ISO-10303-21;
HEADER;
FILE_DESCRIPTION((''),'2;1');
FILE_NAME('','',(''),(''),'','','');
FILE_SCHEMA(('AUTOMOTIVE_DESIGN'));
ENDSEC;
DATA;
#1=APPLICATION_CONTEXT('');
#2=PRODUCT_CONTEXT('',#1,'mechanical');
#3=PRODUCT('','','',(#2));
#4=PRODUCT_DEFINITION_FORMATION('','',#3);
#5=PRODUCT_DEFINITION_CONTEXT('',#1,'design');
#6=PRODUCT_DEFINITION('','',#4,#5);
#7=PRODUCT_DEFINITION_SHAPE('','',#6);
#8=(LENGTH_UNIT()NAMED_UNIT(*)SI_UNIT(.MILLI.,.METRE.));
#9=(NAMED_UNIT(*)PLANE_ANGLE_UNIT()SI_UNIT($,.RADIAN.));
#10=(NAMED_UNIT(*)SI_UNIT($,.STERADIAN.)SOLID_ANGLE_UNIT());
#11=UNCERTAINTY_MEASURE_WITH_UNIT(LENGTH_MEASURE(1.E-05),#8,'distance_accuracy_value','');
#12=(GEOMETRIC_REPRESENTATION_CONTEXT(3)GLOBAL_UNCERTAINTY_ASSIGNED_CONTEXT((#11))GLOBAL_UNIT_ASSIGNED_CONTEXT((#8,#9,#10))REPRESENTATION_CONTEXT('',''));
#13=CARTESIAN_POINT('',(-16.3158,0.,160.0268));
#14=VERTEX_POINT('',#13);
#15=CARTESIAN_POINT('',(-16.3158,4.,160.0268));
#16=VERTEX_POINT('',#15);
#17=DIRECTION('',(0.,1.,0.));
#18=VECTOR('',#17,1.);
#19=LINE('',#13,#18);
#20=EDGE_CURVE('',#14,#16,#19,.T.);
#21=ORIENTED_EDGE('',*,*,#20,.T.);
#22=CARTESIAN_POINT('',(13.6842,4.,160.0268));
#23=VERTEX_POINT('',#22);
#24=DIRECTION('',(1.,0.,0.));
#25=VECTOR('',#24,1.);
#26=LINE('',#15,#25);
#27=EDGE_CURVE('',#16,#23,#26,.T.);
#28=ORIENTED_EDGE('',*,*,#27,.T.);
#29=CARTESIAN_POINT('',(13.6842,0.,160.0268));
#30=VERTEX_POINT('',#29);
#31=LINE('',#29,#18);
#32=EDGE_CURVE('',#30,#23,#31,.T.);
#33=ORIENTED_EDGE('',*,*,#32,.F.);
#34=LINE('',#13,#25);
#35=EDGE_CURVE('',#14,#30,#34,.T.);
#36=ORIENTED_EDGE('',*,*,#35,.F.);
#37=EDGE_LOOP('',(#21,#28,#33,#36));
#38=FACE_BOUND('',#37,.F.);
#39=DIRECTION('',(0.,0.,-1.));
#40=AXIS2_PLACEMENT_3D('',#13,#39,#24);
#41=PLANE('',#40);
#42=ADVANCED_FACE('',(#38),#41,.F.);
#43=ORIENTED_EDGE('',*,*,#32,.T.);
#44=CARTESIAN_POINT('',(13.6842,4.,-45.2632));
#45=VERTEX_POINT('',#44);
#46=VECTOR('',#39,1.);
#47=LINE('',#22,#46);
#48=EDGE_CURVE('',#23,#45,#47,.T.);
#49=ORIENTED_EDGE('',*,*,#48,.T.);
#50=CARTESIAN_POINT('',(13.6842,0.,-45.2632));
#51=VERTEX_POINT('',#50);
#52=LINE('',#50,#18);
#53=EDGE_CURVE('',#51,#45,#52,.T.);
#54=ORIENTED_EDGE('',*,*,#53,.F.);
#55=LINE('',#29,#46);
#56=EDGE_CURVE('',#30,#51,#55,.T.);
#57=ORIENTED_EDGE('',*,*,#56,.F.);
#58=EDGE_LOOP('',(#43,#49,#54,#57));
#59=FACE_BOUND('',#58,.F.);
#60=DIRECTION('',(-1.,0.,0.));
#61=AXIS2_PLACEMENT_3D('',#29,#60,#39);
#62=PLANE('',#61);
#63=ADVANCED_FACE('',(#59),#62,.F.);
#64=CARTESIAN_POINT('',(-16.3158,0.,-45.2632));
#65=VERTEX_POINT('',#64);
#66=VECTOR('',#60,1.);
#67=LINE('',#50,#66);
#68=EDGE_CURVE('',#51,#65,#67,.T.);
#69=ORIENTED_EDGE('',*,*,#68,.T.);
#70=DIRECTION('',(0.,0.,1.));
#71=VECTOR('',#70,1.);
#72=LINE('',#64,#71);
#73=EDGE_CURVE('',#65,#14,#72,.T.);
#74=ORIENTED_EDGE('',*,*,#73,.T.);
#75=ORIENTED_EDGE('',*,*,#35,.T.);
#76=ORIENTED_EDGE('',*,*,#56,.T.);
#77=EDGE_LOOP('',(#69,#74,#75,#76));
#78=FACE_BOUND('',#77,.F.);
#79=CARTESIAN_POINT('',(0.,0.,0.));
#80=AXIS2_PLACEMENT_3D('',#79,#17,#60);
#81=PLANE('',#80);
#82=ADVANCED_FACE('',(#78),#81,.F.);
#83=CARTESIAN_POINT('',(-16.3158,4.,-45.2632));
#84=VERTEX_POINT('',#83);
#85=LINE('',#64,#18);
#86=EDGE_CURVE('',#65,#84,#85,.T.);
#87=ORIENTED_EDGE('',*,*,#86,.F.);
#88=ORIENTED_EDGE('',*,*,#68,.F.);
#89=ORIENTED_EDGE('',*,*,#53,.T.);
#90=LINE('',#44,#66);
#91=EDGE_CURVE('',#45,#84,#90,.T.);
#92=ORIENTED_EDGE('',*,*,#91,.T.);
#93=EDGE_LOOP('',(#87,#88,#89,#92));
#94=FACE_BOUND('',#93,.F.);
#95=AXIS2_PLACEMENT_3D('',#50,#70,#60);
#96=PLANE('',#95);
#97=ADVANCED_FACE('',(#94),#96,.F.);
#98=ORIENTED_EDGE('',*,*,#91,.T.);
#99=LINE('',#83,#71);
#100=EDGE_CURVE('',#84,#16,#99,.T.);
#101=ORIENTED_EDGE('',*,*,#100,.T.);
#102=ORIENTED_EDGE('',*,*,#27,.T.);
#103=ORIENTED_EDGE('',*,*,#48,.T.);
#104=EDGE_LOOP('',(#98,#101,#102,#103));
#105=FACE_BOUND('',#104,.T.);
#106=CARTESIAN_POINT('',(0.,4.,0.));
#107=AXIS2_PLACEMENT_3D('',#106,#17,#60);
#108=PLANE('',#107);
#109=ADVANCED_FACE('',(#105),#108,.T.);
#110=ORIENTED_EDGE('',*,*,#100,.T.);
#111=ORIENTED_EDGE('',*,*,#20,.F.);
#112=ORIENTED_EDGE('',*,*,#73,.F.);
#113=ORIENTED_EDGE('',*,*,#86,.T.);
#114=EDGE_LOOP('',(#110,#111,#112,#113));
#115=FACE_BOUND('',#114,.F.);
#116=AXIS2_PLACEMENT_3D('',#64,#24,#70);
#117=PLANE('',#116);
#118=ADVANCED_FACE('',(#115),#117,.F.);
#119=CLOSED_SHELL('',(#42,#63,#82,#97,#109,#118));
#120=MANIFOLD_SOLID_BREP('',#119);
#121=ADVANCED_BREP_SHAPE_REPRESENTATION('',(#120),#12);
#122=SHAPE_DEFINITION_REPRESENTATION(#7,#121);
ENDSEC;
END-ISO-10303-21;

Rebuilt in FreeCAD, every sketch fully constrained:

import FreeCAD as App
import Part
import Sketcher


def add_polygon(sketch, points):
    """Adds a closed chain of lines whose ends are joined by coincident constraints."""
    first, n = sketch.GeometryCount, len(points)
    for a, b in zip(points, points[1:] + points[:1]):
        sketch.addGeometry(Part.LineSegment(App.Vector(*a, 0), App.Vector(*b, 0)), False)
    for i in range(n):
        sketch.addConstraint(Sketcher.Constraint("Coincident", first + i, 2, first + (i + 1) % n, 1))

doc = App.newDocument("Part")
body = doc.addObject("PartDesign::Body", "Body")

# Sketch on XZ plane
sketch1 = body.newObject("Sketcher::SketchObject", "Sketch")
sketch1.AttachmentSupport = (doc.getObject("XZ_Plane"), [""])
sketch1.MapMode = "FlatFace"
add_polygon(sketch1, [(-16, -45), (-16, 160), (14, 160), (14, -45)])  # lines 0-3
sketch1.addConstraint(Sketcher.Constraint("Vertical", 0))
sketch1.addConstraint(Sketcher.Constraint("Horizontal", 1))
sketch1.addConstraint(Sketcher.Constraint("Vertical", 2))
sketch1.addConstraint(Sketcher.Constraint("Horizontal", 3))
sketch1.addConstraint(Sketcher.Constraint("DistanceX", 1, 1, 1, 2, 30.0))
sketch1.addConstraint(Sketcher.Constraint("DistanceY", 0, 1, 0, 2, 205.29))
sketch1.addConstraint(Sketcher.Constraint("DistanceX", 0, 2, -1, 1, 16.3158))
sketch1.addConstraint(Sketcher.Constraint("DistanceY", -1, 1, 0, 2, 160.0268))
pad1 = body.newObject("PartDesign::Pad", "Pad")
pad1.Profile = sketch1
pad1.Length = 4
pad1.Reversed = True

doc.recompute()
